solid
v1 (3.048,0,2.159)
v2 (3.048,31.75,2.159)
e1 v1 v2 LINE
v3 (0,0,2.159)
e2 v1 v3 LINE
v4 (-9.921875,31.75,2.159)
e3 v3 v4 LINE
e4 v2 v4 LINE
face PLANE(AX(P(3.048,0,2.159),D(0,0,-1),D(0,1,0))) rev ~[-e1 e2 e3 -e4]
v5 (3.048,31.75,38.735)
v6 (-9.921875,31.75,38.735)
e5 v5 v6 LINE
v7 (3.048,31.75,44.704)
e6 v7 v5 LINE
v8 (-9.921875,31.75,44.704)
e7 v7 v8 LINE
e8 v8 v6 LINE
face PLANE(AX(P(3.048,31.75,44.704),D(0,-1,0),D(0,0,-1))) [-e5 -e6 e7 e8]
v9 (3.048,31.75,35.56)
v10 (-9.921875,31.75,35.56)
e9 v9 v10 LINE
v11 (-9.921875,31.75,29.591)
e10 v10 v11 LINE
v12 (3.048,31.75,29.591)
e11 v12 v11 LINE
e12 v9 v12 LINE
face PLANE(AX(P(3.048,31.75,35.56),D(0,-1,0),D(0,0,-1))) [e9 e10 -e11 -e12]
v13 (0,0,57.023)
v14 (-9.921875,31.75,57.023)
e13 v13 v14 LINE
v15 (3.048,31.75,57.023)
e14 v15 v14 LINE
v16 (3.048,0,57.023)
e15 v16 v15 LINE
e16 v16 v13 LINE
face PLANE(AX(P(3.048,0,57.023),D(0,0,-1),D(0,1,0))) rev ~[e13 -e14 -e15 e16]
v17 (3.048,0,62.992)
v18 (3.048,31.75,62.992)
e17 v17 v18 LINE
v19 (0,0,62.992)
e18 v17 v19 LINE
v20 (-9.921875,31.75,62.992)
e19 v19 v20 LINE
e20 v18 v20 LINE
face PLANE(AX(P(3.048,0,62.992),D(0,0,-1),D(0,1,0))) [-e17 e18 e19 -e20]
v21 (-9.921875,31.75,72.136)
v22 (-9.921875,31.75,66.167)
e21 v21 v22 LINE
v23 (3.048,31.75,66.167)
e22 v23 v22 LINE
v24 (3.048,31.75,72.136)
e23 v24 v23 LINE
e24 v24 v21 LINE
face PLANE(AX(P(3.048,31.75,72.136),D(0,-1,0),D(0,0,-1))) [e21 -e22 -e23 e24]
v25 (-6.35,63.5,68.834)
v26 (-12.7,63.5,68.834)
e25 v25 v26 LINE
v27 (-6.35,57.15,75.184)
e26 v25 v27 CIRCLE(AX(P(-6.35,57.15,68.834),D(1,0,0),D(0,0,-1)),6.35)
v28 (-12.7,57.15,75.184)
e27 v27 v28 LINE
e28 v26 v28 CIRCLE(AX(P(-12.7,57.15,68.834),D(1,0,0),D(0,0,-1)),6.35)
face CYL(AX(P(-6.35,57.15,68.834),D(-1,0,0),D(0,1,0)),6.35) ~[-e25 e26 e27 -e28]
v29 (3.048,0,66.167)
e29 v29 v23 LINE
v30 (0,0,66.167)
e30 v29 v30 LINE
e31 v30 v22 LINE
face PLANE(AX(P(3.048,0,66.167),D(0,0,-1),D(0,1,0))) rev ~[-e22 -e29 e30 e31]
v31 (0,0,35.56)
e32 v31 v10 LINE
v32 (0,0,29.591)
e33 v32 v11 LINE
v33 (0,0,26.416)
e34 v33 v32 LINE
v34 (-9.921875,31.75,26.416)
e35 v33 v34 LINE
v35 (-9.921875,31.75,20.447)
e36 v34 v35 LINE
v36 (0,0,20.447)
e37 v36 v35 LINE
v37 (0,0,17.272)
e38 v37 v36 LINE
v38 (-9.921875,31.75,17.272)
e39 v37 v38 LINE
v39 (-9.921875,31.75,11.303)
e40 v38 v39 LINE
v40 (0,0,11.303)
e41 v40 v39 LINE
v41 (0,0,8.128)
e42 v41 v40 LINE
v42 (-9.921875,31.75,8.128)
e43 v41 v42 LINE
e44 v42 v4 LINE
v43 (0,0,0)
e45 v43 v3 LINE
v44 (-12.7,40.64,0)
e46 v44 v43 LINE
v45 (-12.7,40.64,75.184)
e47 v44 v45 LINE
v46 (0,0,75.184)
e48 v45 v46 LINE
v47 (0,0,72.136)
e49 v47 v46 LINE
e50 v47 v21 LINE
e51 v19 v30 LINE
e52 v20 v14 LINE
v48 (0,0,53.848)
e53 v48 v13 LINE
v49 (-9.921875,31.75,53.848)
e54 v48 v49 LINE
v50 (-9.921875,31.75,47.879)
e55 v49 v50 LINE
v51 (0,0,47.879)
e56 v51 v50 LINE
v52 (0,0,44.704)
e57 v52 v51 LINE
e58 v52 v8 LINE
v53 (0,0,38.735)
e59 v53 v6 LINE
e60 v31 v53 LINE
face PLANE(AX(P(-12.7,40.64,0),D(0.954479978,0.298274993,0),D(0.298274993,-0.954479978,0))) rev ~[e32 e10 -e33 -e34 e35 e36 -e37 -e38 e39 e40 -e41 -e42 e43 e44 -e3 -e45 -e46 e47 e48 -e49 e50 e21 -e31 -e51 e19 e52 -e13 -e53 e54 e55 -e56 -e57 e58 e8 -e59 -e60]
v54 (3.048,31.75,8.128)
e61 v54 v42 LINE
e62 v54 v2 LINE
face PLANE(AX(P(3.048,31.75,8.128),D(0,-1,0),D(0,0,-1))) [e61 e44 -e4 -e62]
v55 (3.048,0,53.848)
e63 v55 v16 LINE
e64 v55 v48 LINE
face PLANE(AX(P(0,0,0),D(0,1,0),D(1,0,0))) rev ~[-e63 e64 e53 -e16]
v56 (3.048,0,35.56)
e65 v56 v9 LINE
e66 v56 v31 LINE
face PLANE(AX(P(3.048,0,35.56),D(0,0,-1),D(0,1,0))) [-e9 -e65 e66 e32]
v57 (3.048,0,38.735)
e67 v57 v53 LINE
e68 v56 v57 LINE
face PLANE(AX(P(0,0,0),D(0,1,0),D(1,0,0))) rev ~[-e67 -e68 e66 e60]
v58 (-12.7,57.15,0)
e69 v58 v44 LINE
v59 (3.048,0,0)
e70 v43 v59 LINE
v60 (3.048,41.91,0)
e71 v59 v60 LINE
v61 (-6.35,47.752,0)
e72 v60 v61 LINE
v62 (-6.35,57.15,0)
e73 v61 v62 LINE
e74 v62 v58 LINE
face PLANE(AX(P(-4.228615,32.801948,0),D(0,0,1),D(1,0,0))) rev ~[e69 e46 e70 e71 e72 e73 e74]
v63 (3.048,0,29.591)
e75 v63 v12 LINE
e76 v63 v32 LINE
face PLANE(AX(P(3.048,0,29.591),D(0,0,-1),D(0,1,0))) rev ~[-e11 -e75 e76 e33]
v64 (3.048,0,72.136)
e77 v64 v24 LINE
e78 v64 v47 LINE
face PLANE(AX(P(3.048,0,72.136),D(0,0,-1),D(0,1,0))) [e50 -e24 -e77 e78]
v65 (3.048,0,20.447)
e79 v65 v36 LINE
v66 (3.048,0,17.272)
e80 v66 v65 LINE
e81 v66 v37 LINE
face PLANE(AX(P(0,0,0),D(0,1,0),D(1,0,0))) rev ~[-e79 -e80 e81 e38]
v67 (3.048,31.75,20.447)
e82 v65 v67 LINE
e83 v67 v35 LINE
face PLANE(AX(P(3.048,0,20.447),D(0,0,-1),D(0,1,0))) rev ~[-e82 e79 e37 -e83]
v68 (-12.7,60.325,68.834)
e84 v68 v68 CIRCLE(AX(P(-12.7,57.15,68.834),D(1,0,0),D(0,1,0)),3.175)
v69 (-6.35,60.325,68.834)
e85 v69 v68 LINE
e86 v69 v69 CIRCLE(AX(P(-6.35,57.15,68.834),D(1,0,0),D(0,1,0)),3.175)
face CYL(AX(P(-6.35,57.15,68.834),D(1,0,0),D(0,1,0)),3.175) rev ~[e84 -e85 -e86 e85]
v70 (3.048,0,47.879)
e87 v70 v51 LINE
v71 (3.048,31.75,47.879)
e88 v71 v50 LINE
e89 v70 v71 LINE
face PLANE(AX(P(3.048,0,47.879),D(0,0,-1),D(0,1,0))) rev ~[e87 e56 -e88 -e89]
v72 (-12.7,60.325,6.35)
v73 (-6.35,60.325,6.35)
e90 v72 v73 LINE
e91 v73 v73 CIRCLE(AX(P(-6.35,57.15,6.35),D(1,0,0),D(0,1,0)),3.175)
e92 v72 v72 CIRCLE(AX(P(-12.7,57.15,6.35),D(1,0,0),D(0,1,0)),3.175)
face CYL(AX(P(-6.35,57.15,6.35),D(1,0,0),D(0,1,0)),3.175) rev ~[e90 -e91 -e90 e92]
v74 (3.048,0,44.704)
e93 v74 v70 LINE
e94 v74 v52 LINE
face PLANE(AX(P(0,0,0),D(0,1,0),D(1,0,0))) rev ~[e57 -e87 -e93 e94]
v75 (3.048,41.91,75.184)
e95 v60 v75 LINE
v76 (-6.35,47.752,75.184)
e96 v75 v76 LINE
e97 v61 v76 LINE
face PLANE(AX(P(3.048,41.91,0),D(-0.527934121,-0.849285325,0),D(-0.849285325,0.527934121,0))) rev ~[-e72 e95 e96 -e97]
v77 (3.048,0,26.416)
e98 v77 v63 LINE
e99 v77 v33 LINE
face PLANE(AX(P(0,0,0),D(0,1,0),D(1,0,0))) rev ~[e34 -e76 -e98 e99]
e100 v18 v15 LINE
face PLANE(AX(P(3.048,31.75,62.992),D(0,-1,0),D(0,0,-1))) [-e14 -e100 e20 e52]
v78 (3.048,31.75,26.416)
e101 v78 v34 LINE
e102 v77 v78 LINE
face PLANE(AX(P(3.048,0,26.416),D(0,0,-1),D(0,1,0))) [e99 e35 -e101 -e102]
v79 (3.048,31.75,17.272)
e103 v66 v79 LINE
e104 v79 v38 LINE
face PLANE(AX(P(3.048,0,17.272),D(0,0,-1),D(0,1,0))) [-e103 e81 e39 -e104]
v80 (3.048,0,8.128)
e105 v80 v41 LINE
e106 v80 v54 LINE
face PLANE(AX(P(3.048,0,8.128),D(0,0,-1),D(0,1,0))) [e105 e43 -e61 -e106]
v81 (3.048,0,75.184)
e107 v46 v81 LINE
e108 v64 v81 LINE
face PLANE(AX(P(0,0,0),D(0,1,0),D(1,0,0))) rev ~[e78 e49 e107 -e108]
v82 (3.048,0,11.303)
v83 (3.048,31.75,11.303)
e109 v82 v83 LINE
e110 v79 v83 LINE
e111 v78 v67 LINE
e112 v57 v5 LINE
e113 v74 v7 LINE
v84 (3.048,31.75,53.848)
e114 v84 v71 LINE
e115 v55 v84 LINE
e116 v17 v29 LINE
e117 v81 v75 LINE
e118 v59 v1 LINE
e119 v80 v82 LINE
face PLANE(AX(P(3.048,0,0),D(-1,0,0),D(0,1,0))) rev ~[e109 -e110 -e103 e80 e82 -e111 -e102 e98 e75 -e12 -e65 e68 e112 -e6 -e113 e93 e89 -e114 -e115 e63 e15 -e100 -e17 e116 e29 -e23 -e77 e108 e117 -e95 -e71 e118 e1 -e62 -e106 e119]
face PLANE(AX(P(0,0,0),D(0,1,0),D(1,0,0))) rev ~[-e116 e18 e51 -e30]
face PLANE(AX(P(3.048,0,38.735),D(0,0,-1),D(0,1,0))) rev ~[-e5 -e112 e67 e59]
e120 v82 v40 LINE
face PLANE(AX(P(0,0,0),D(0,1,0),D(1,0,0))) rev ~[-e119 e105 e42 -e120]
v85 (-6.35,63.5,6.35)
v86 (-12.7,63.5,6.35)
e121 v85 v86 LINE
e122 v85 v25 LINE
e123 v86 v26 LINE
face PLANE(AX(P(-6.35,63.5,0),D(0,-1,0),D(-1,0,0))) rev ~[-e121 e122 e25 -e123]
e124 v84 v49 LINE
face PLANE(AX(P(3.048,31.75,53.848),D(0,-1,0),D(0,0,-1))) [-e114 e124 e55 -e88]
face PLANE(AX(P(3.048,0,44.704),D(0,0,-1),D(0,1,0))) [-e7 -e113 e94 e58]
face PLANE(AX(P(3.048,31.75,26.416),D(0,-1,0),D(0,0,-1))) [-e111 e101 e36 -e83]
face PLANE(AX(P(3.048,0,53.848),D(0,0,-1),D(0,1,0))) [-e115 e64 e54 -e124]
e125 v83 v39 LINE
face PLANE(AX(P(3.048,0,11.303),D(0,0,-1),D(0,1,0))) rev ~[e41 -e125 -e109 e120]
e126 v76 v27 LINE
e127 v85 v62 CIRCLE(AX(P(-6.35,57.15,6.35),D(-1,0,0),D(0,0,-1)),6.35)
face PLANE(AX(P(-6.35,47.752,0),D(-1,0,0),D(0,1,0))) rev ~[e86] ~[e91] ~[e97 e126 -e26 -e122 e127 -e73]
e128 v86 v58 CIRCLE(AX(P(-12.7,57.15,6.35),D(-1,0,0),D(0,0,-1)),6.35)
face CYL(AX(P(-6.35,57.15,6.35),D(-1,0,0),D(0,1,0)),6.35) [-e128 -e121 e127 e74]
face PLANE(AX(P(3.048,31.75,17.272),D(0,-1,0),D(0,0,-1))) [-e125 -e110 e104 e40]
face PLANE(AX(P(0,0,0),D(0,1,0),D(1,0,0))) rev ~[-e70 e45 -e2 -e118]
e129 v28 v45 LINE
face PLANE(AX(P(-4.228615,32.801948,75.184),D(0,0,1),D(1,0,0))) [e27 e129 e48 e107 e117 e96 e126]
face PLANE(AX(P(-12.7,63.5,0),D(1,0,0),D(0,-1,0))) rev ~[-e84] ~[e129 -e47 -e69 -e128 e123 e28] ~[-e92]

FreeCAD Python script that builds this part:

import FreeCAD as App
import Part
import Sketcher
from FreeCAD import Vector
Q = App.Units.Quantity


def edges_at(feature, points):
    """Names of the edges that pass closest to the given points."""
    edges = feature.Shape.Edges
    near = lambda p: min(range(len(edges)), key=lambda i: edges[i].distToShape(Part.Vertex(*p))[0])
    return sorted({f"Edge{near(p) + 1}" for p in points})

doc = App.newDocument("Part")
body = doc.addObject("PartDesign::Body", "Body")

sketch1 = doc.addObject("Sketcher::SketchObject", "Sketch")
body.addObject(sketch1)
sketch1.AttachmentSupport = (doc.XY_Plane, [""])
sketch1.MapMode = "FlatFace"
sketch1.addGeometry(Part.LineSegment(Vector(0, 0, 0), Vector(3, 0, 0)), False)
sketch1.addGeometry(Part.LineSegment(Vector(3, 0, 0), Vector(3, 41.9, 0)), False)
sketch1.addGeometry(Part.LineSegment(Vector(3, 41.9, 0), Vector(-6.3, 47.8, 0)), False)
sketch1.addGeometry(Part.LineSegment(Vector(-6.3, 47.8, 0), Vector(-6.3, 63.5, 0)), False)
sketch1.addGeometry(Part.LineSegment(Vector(-6.3, 63.5, 0), Vector(-12.7, 63.5, 0)), False)
sketch1.addGeometry(Part.LineSegment(Vector(-12.7, 63.5, 0), Vector(-12.7, 40.6, 0)), False)
sketch1.addGeometry(Part.LineSegment(Vector(-12.7, 40.6, 0), Vector(0, 0, 0)), False)
sketch1.addConstraint(Sketcher.Constraint("Coincident", 0, 2, 1, 1))
sketch1.addConstraint(Sketcher.Constraint("Coincident", 1, 2, 2, 1))
sketch1.addConstraint(Sketcher.Constraint("Coincident", 2, 2, 3, 1))
sketch1.addConstraint(Sketcher.Constraint("Coincident", 3, 2, 4, 1))
sketch1.addConstraint(Sketcher.Constraint("Coincident", 4, 2, 5, 1))
sketch1.addConstraint(Sketcher.Constraint("Coincident", 5, 2, 6, 1))
sketch1.addConstraint(Sketcher.Constraint("Coincident", 6, 2, 0, 1))
sketch1.addConstraint(Sketcher.Constraint("Horizontal", 0))
sketch1.addConstraint(Sketcher.Constraint("Vertical", 1))
sketch1.addConstraint(Sketcher.Constraint("Vertical", 3))
sketch1.addConstraint(Sketcher.Constraint("Horizontal", 4))
sketch1.addConstraint(Sketcher.Constraint("Vertical", 5))
sketch1.addConstraint(Sketcher.Constraint("Coincident", 6, 2, -1, 1))
sketch1.addConstraint(Sketcher.Constraint("DistanceY", 5, 2, 5, 1, Q("0.9 in")))
sketch1.addConstraint(Sketcher.Constraint("DistanceX", 0, 1, 0, 2, Q("0.12 in")))
sketch1.addConstraint(Sketcher.Constraint("DistanceX", 4, 2, 4, 1, Q("0.25 in")))
sketch1.addConstraint(Sketcher.Constraint("DistanceY", 1, 1, 1, 2, Q("1.65 in")))
sketch1.addConstraint(Sketcher.Constraint("DistanceY", 3, 1, 3, 2, Q("0.62 in")))
sketch1.addConstraint(Sketcher.Constraint("DistanceY", -1, 1, 3, 2, Q("2.5 in")))
sketch1.addConstraint(Sketcher.Constraint("DistanceX", 4, 2, -1, 1, Q("0.5 in")))
pad1 = doc.addObject("PartDesign::Pad", "Pad")
body.addObject(pad1)
pad1.Profile = sketch1
pad1.Length = Q("2.96 in")
doc.recompute()

fillet = doc.addObject("PartDesign::Fillet", "Fillet")
body.addObject(fillet)
fillet.Base = (pad1, edges_at(pad1, [(-9.525, 63.5, 75.184), (-9.525, 63.5, 0)]))
fillet.Radius = Q("0.25 in")

sketch2 = doc.addObject("Sketcher::SketchObject", "Sketch001")
body.addObject(sketch2)
sketch2.AttachmentSupport = (doc.YZ_Plane, [""])
sketch2.MapMode = "FlatFace"
sketch2.AttachmentOffset = App.Placement(Vector(0, 0, -0.25 * 25.4), App.Rotation())
sketch2.addGeometry(Part.Circle(Vector(57.1, 68.8, 0), Vector(0, 0, 1), 3.2), False)
sketch2.addGeometry(Part.Circle(Vector(57.1, 6.3, 0), Vector(0, 0, 1), 3.2), False)
sketch2.addConstraint(Sketcher.Constraint("Equal", 0, 1))
sketch2.addConstraint(Sketcher.Constraint("Vertical", 0, 3, 1, 3))
sketch2.addConstraint(Sketcher.Constraint("Diameter", 0, Q("0.25 in")))
sketch2.addConstraint(Sketcher.Constraint("DistanceX", -1, 1, 0, 3, Q("2.25 in")))
sketch2.addConstraint(Sketcher.Constraint("DistanceY", -1, 1, 0, 3, Q("2.71 in")))
sketch2.addConstraint(Sketcher.Constraint("DistanceY", -1, 1, 1, 3, Q("0.25 in")))
pocket1 = doc.addObject("PartDesign::Pocket", "Pocket")
body.addObject(pocket1)
pocket1.Profile = sketch2
pocket1.Length = Q("4.96 in")
pocket1.Midplane = True

sketch3 = doc.addObject("Sketcher::SketchObject", "Sketch002")
body.addObject(sketch3)
sketch3.AttachmentSupport = (doc.YZ_Plane, [""])
sketch3.MapMode = "FlatFace"
sketch3.AttachmentOffset = App.Placement(Vector(0, 0, 0.12 * 25.4), App.Rotation())
sketch3.addGeometry(Part.LineSegment(Vector(32, 72, 0), Vector(0, 72, 0)), False)
sketch3.addGeometry(Part.LineSegment(Vector(0, 72, 0), Vector(0, 66, 0)), False)
sketch3.addGeometry(Part.LineSegment(Vector(0, 66, 0), Vector(32, 66, 0)), False)
sketch3.addGeometry(Part.LineSegment(Vector(32, 66, 0), Vector(32, 72, 0)), False)
sketch3.addGeometry(Part.LineSegment(Vector(32, 63, 0), Vector(0, 63, 0)), False)
sketch3.addGeometry(Part.LineSegment(Vector(0, 63, 0), Vector(0, 57, 0)), False)
sketch3.addGeometry(Part.LineSegment(Vector(0, 57, 0), Vector(32, 57, 0)), False)
sketch3.addGeometry(Part.LineSegment(Vector(32, 57, 0), Vector(32, 63, 0)), False)
sketch3.addGeometry(Part.LineSegment(Vector(32, 54, 0), Vector(0, 54, 0)), False)
sketch3.addGeometry(Part.LineSegment(Vector(0, 54, 0), Vector(0, 48, 0)), False)
sketch3.addGeometry(Part.LineSegment(Vector(0, 48, 0), Vector(32, 48, 0)), False)
sketch3.addGeometry(Part.LineSegment(Vector(32, 48, 0), Vector(32, 54, 0)), False)
sketch3.addGeometry(Part.LineSegment(Vector(32, 45, 0), Vector(0, 45, 0)), False)
sketch3.addGeometry(Part.LineSegment(Vector(0, 45, 0), Vector(0, 39, 0)), False)
sketch3.addGeometry(Part.LineSegment(Vector(0, 39, 0), Vector(32, 39, 0)), False)
sketch3.addGeometry(Part.LineSegment(Vector(32, 39, 0), Vector(32, 45, 0)), False)
sketch3.addGeometry(Part.LineSegment(Vector(32, 36, 0), Vector(0, 36, 0)), False)
sketch3.addGeometry(Part.LineSegment(Vector(0, 36, 0), Vector(0, 30, 0)), False)
sketch3.addGeometry(Part.LineSegment(Vector(0, 30, 0), Vector(32, 30, 0)), False)
sketch3.addGeometry(Part.LineSegment(Vector(32, 30, 0), Vector(32, 36, 0)), False)
sketch3.addGeometry(Part.LineSegment(Vector(32, 26, 0), Vector(0, 26, 0)), False)
sketch3.addGeometry(Part.LineSegment(Vector(0, 26, 0), Vector(0, 20, 0)), False)
sketch3.addGeometry(Part.LineSegment(Vector(0, 20, 0), Vector(32, 20, 0)), False)
sketch3.addGeometry(Part.LineSegment(Vector(32, 20, 0), Vector(32, 26, 0)), False)
sketch3.addGeometry(Part.LineSegment(Vector(32, 17, 0), Vector(0, 17, 0)), False)
sketch3.addGeometry(Part.LineSegment(Vector(0, 17, 0), Vector(0, 11, 0)), False)
sketch3.addGeometry(Part.LineSegment(Vector(0, 11, 0), Vector(32, 11, 0)), False)
sketch3.addGeometry(Part.LineSegment(Vector(32, 11, 0), Vector(32, 17, 0)), False)
sketch3.addGeometry(Part.LineSegment(Vector(32, 8, 0), Vector(0, 8, 0)), False)
sketch3.addGeometry(Part.LineSegment(Vector(0, 8, 0), Vector(0, 2, 0)), False)
sketch3.addGeometry(Part.LineSegment(Vector(0, 2, 0), Vector(32, 2, 0)), False)
sketch3.addGeometry(Part.LineSegment(Vector(32, 2, 0), Vector(32, 8, 0)), False)
sketch3.addConstraint(Sketcher.Constraint("Coincident", 0, 2, 1, 1))
sketch3.addConstraint(Sketcher.Constraint("Coincident", 1, 2, 2, 1))
sketch3.addConstraint(Sketcher.Constraint("Coincident", 2, 2, 3, 1))
sketch3.addConstraint(Sketcher.Constraint("Coincident", 3, 2, 0, 1))
sketch3.addConstraint(Sketcher.Constraint("Coincident", 4, 2, 5, 1))
sketch3.addConstraint(Sketcher.Constraint("Coincident", 5, 2, 6, 1))
sketch3.addConstraint(Sketcher.Constraint("Coincident", 6, 2, 7, 1))
sketch3.addConstraint(Sketcher.Constraint("Coincident", 7, 2, 4, 1))
sketch3.addConstraint(Sketcher.Constraint("Coincident", 8, 2, 9, 1))
sketch3.addConstraint(Sketcher.Constraint("Coincident", 9, 2, 10, 1))
sketch3.addConstraint(Sketcher.Constraint("Coincident", 10, 2, 11, 1))
sketch3.addConstraint(Sketcher.Constraint("Coincident", 11, 2, 8, 1))
sketch3.addConstraint(Sketcher.Constraint("Coincident", 12, 2, 13, 1))
sketch3.addConstraint(Sketcher.Constraint("Coincident", 13, 2, 14, 1))
sketch3.addConstraint(Sketcher.Constraint("Coincident", 14, 2, 15, 1))
sketch3.addConstraint(Sketcher.Constraint("Coincident", 15, 2, 12, 1))
sketch3.addConstraint(Sketcher.Constraint("Coincident", 16, 2, 17, 1))
sketch3.addConstraint(Sketcher.Constraint("Coincident", 17, 2, 18, 1))
sketch3.addConstraint(Sketcher.Constraint("Coincident", 18, 2, 19, 1))
sketch3.addConstraint(Sketcher.Constraint("Coincident", 19, 2, 16, 1))
sketch3.addConstraint(Sketcher.Constraint("Coincident", 20, 2, 21, 1))
sketch3.addConstraint(Sketcher.Constraint("Coincident", 21, 2, 22, 1))
sketch3.addConstraint(Sketcher.Constraint("Coincident", 22, 2, 23, 1))
sketch3.addConstraint(Sketcher.Constraint("Coincident", 23, 2, 20, 1))
sketch3.addConstraint(Sketcher.Constraint("Coincident", 24, 2, 25, 1))
sketch3.addConstraint(Sketcher.Constraint("Coincident", 25, 2, 26, 1))
sketch3.addConstraint(Sketcher.Constraint("Coincident", 26, 2, 27, 1))
sketch3.addConstraint(Sketcher.Constraint("Coincident", 27, 2, 24, 1))
sketch3.addConstraint(Sketcher.Constraint("Coincident", 28, 2, 29, 1))
sketch3.addConstraint(Sketcher.Constraint("Coincident", 29, 2, 30, 1))
sketch3.addConstraint(Sketcher.Constraint("Coincident", 30, 2, 31, 1))
sketch3.addConstraint(Sketcher.Constraint("Coincident", 31, 2, 28, 1))
sketch3.addConstraint(Sketcher.Constraint("Horizontal", 0))
sketch3.addConstraint(Sketcher.Constraint("Vertical", 1))
sketch3.addConstraint(Sketcher.Constraint("Horizontal", 2))
sketch3.addConstraint(Sketcher.Constraint("Vertical", 3))
sketch3.addConstraint(Sketcher.Constraint("Horizontal", 4))
sketch3.addConstraint(Sketcher.Constraint("Vertical", 5))
sketch3.addConstraint(Sketcher.Constraint("Horizontal", 6))
sketch3.addConstraint(Sketcher.Constraint("Vertical", 7))
sketch3.addConstraint(Sketcher.Constraint("Horizontal", 8))
sketch3.addConstraint(Sketcher.Constraint("Vertical", 9))
sketch3.addConstraint(Sketcher.Constraint("Horizontal", 10))
sketch3.addConstraint(Sketcher.Constraint("Vertical", 11))
sketch3.addConstraint(Sketcher.Constraint("Horizontal", 12))
sketch3.addConstraint(Sketcher.Constraint("Vertical", 13))
sketch3.addConstraint(Sketcher.Constraint("Horizontal", 14))
sketch3.addConstraint(Sketcher.Constraint("Vertical", 15))
sketch3.addConstraint(Sketcher.Constraint("Horizontal", 16))
sketch3.addConstraint(Sketcher.Constraint("Vertical", 17))
sketch3.addConstraint(Sketcher.Constraint("Horizontal", 18))
sketch3.addConstraint(Sketcher.Constraint("Vertical", 19))
sketch3.addConstraint(Sketcher.Constraint("Horizontal", 20))
sketch3.addConstraint(Sketcher.Constraint("Vertical", 21))
sketch3.addConstraint(Sketcher.Constraint("Horizontal", 22))
sketch3.addConstraint(Sketcher.Constraint("Vertical", 23))
sketch3.addConstraint(Sketcher.Constraint("Horizontal", 24))
sketch3.addConstraint(Sketcher.Constraint("Vertical", 25))
sketch3.addConstraint(Sketcher.Constraint("Horizontal", 26))
sketch3.addConstraint(Sketcher.Constraint("Vertical", 27))
sketch3.addConstraint(Sketcher.Constraint("Horizontal", 28))
sketch3.addConstraint(Sketcher.Constraint("Vertical", 29))
sketch3.addConstraint(Sketcher.Constraint("Horizontal", 30))
sketch3.addConstraint(Sketcher.Constraint("Vertical", 31))
sketch3.addConstraint(Sketcher.Constraint("PointOnObject", 0, 2, -2))
sketch3.addConstraint(Sketcher.Constraint("PointOnObject", 4, 2, -2))
sketch3.addConstraint(Sketcher.Constraint("PointOnObject", 8, 2, -2))
sketch3.addConstraint(Sketcher.Constraint("PointOnObject", 12, 2, -2))
sketch3.addConstraint(Sketcher.Constraint("PointOnObject", 16, 2, -2))
sketch3.addConstraint(Sketcher.Constraint("PointOnObject", 20, 2, -2))
sketch3.addConstraint(Sketcher.Constraint("PointOnObject", 24, 2, -2))
sketch3.addConstraint(Sketcher.Constraint("PointOnObject", 28, 2, -2))
sketch3.addConstraint(Sketcher.Constraint("Vertical", 3, 2, 6, 2))
sketch3.addConstraint(Sketcher.Constraint("Vertical", 7, 2, 10, 2))
sketch3.addConstraint(Sketcher.Constraint("Vertical", 11, 2, 14, 2))
sketch3.addConstraint(Sketcher.Constraint("Vertical", 15, 2, 18, 2))
sketch3.addConstraint(Sketcher.Constraint("Vertical", 19, 2, 22, 2))
sketch3.addConstraint(Sketcher.Constraint("Vertical", 23, 2, 26, 2))
sketch3.addConstraint(Sketcher.Constraint("Vertical", 27, 2, 30, 2))
sketch3.addConstraint(Sketcher.Constraint("Equal", 3, 5))
sketch3.addConstraint(Sketcher.Constraint("Equal", 7, 9))
sketch3.addConstraint(Sketcher.Constraint("Equal", 11, 13))
sketch3.addConstraint(Sketcher.Constraint("Equal", 15, 17))
sketch3.addConstraint(Sketcher.Constraint("Equal", 19, 21))
sketch3.addConstraint(Sketcher.Constraint("Equal", 23, 25))
sketch3.addConstraint(Sketcher.Constraint("Equal", 27, 29))
sketch3.addConstraint(Sketcher.Constraint("DistanceX", 0, 2, 0, 1, Q("1.25 in")))
sketch3.addConstraint(Sketcher.Constraint("DistanceY", -1, 1, 16, 2, Q("1.4 in")))
sketch3.addConstraint(Sketcher.Constraint("DistanceY", 1, 2, 1, 1, Q("0.235 in")))
sketch3.addConstraint(Sketcher.Constraint("DistanceY", -1, 1, 0, 2, Q("2.84 in")))
sketch3.addConstraint(Sketcher.Constraint("DistanceY", -1, 1, 4, 2, Q("2.48 in")))
sketch3.addConstraint(Sketcher.Constraint("DistanceY", -1, 1, 8, 2, Q("2.12 in")))
sketch3.addConstraint(Sketcher.Constraint("DistanceY", -1, 1, 12, 2, Q("1.76 in")))
sketch3.addConstraint(Sketcher.Constraint("DistanceY", -1, 1, 20, 2, Q("1.04 in")))
sketch3.addConstraint(Sketcher.Constraint("DistanceY", -1, 1, 24, 2, Q("0.68 in")))
sketch3.addConstraint(Sketcher.Constraint("DistanceY", -1, 1, 28, 2, Q("0.32 in")))
pocket2 = doc.addObject("PartDesign::Pocket", "Pocket001")
body.addObject(pocket2)
pocket2.Profile = sketch3
pocket2.Type = "ThroughAll"

doc.recompute()
